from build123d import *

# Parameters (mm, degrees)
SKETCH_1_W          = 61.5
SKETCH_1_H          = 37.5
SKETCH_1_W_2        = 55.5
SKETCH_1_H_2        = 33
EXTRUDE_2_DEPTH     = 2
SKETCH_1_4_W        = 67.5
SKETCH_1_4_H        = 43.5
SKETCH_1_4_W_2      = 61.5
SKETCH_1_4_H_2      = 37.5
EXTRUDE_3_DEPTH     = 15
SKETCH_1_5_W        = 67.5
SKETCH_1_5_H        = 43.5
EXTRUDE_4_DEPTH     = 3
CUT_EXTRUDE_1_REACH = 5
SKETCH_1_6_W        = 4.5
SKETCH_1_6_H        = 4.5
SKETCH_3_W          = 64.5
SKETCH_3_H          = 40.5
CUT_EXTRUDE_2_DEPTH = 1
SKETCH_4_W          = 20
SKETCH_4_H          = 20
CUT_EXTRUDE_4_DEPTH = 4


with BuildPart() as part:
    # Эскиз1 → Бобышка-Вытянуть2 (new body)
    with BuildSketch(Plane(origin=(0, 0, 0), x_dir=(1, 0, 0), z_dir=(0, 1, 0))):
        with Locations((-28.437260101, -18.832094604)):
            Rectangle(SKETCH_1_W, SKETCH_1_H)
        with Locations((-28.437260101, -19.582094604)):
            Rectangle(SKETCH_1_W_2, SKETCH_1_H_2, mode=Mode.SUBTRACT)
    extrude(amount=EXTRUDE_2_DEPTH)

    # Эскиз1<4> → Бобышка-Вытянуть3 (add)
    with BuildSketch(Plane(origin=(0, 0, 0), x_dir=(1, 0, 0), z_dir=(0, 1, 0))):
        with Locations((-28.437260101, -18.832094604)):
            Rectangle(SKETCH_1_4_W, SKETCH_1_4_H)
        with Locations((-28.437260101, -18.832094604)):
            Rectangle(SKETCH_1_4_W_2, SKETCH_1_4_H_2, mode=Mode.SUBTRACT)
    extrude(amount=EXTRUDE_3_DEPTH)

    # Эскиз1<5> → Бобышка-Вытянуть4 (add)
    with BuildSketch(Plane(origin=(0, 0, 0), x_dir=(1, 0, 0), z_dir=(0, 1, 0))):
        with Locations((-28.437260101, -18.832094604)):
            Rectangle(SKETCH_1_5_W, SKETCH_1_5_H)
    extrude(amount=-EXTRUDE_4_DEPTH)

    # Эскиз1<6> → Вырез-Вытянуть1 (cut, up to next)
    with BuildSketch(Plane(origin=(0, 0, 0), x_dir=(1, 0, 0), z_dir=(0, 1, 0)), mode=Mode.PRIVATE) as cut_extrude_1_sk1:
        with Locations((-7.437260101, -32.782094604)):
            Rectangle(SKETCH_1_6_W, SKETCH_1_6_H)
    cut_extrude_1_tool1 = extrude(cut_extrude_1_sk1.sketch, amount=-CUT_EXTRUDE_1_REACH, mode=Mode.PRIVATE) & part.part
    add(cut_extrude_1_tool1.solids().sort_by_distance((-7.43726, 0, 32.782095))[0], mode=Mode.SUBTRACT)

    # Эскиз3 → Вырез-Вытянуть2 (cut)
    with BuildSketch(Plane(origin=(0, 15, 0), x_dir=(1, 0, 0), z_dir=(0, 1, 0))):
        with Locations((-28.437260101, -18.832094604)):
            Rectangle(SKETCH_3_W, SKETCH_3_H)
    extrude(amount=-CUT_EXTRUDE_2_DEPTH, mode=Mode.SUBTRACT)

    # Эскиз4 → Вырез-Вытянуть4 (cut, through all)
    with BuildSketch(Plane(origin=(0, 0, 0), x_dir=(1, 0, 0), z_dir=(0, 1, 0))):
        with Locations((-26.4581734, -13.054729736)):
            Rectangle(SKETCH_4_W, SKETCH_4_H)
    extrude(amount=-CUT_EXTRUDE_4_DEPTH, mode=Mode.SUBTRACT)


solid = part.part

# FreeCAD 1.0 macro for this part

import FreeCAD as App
import Part
import Sketcher

V = App.Vector

doc = App.newDocument("Part")
params = doc.addObject("Spreadsheet::Sheet", "Params")
for row, (alias, value) in enumerate([
    ("sketch1_height", "33 mm"),
    ("sketch1_width", "61.5 mm"),
    ("sketch1_width2", "55.5 mm"),
    ("sketch1_height2", "37.5 mm"),
    ("pad1_length", "2 mm"),
    ("sketch2_width", "67.5 mm"),
    ("sketch2_width2", "61.5 mm"),
    ("sketch2_height", "43.5 mm"),
    ("sketch2_height2", "37.5 mm"),
    ("pad2_length", "15 mm"),
    ("sketch3_width", "67.5 mm"),
    ("sketch3_height", "43.5 mm"),
    ("pad3_length", "3 mm"),
    ("sketch4_width", "4.5 mm"),
    ("sketch5_width", "64.5 mm"),
    ("sketch5_height", "40.5 mm"),
    ("pocket2_length", "1 mm"),
    ("sketch6_width", "20 mm"),
], start=1):
    params.set(f"A{row}", alias)
    params.set(f"B{row}", "=" + value)
    params.setAlias(f"B{row}", alias)

body = doc.addObject("PartDesign::Body", "Body")

# Sketch on XZ plane
sketch1 = body.newObject("Sketcher::SketchObject", "Sketch")
sketch1.AttachmentSupport = (doc.getObject("XZ_Plane"), [""])
sketch1.MapMode = "FlatFace"
sketch1.addGeometry(Part.LineSegment(V(-59.18726, 0.082095, 0), V(-59.18726, 37.582095, 0)), False)
sketch1.addGeometry(Part.LineSegment(V(-59.18726, 37.582095, 0), V(2.31274, 37.582095, 0)), False)
sketch1.addGeometry(Part.LineSegment(V(2.31274, 37.582095, 0), V(2.31274, 0.082095, 0)), False)
sketch1.addGeometry(Part.LineSegment(V(2.31274, 0.082095, 0), V(-59.18726, 0.082095, 0)), False)
sketch1.addGeometry(Part.LineSegment(V(-0.68726, 36.082095, 0), V(-56.18726, 36.082095, 0)), False)
sketch1.addGeometry(Part.LineSegment(V(-56.18726, 36.082095, 0), V(-56.18726, 3.082095, 0)), False)
sketch1.addGeometry(Part.LineSegment(V(-56.18726, 3.082095, 0), V(-0.68726, 3.082095, 0)), False)
sketch1.addGeometry(Part.LineSegment(V(-0.68726, 3.082095, 0), V(-0.68726, 36.082095, 0)), False)
sketch1.addConstraint(Sketcher.Constraint("Coincident", 0, 2, 1, 1))
sketch1.addConstraint(Sketcher.Constraint("Coincident", 1, 2, 2, 1))
sketch1.addConstraint(Sketcher.Constraint("Coincident", 2, 2, 3, 1))
sketch1.addConstraint(Sketcher.Constraint("Coincident", 3, 2, 0, 1))
sketch1.addConstraint(Sketcher.Constraint("Coincident", 4, 2, 5, 1))
sketch1.addConstraint(Sketcher.Constraint("Coincident", 5, 2, 6, 1))
sketch1.addConstraint(Sketcher.Constraint("Coincident", 6, 2, 7, 1))
sketch1.addConstraint(Sketcher.Constraint("Coincident", 7, 2, 4, 1))
sketch1.addConstraint(Sketcher.Constraint("Vertical", 0))
sketch1.addConstraint(Sketcher.Constraint("Horizontal", 1))
sketch1.addConstraint(Sketcher.Constraint("Vertical", 2))
sketch1.addConstraint(Sketcher.Constraint("Horizontal", 3))
sketch1.addConstraint(Sketcher.Constraint("Horizontal", 4))
sketch1.addConstraint(Sketcher.Constraint("Vertical", 5))
sketch1.addConstraint(Sketcher.Constraint("Horizontal", 6))
sketch1.addConstraint(Sketcher.Constraint("Vertical", 7))
sketch1.addConstraint(Sketcher.Constraint("DistanceY", 5, 2, 5, 1, 33.0))
sketch1.addConstraint(Sketcher.Constraint("DistanceX", 1, 1, 1, 2, 61.5))
sketch1.addConstraint(Sketcher.Constraint("DistanceX", 4, 2, 4, 1, 55.5))
sketch1.addConstraint(Sketcher.Constraint("DistanceY", 0, 1, 0, 2, 37.5))
sketch1.addConstraint(Sketcher.Constraint("DistanceX", 0, 2, 4, 2, 3.0))
sketch1.addConstraint(Sketcher.Constraint("DistanceY", 3, 2, 4, 2, 36.0))
sketch1.addConstraint(Sketcher.Constraint("DistanceX", 0, 2, -1, 1, 59.18726))
sketch1.addConstraint(Sketcher.Constraint("DistanceY", -1, 1, 0, 2, 37.582095))
sketch1.setExpression("Constraints[16]", "Params.sketch1_height")
sketch1.setExpression("Constraints[17]", "Params.sketch1_width")
sketch1.setExpression("Constraints[18]", "Params.sketch1_width2")
sketch1.setExpression("Constraints[19]", "Params.sketch1_height2")
pad1 = body.newObject("PartDesign::Pad", "Pad")
pad1.Profile = sketch1
pad1.setExpression("Length", "Params.pad1_length")
pad1.Reversed = True

# Sketch on XZ plane
sketch2 = body.newObject("Sketcher::SketchObject", "Sketch001")
sketch2.AttachmentSupport = (doc.getObject("XZ_Plane"), [""])
sketch2.MapMode = "FlatFace"
sketch2.addGeometry(Part.LineSegment(V(-62.18726, -2.917905, 0), V(-62.18726, 40.582095, 0)), False)
sketch2.addGeometry(Part.LineSegment(V(-62.18726, 40.582095, 0), V(5.31274, 40.582095, 0)), False)
sketch2.addGeometry(Part.LineSegment(V(5.31274, 40.582095, 0), V(5.31274, -2.917905, 0)), False)
sketch2.addGeometry(Part.LineSegment(V(5.31274, -2.917905, 0), V(-62.18726, -2.917905, 0)), False)
sketch2.addGeometry(Part.LineSegment(V(2.31274, 37.582095, 0), V(-59.18726, 37.582095, 0)), False)
sketch2.addGeometry(Part.LineSegment(V(-59.18726, 37.582095, 0), V(-59.18726, 0.082095, 0)), False)
sketch2.addGeometry(Part.LineSegment(V(-59.18726, 0.082095, 0), V(2.31274, 0.082095, 0)), False)
sketch2.addGeometry(Part.LineSegment(V(2.31274, 0.082095, 0), V(2.31274, 37.582095, 0)), False)
sketch2.addConstraint(Sketcher.Constraint("Coincident", 0, 2, 1, 1))
sketch2.addConstraint(Sketcher.Constraint("Coincident", 1, 2, 2, 1))
sketch2.addConstraint(Sketcher.Constraint("Coincident", 2, 2, 3, 1))
sketch2.addConstraint(Sketcher.Constraint("Coincident", 3, 2, 0, 1))
sketch2.addConstraint(Sketcher.Constraint("Coincident", 4, 2, 5, 1))
sketch2.addConstraint(Sketcher.Constraint("Coincident", 5, 2, 6, 1))
sketch2.addConstraint(Sketcher.Constraint("Coincident", 6, 2, 7, 1))
sketch2.addConstraint(Sketcher.Constraint("Coincident", 7, 2, 4, 1))
sketch2.addConstraint(Sketcher.Constraint("Vertical", 0))
sketch2.addConstraint(Sketcher.Constraint("Horizontal", 1))
sketch2.addConstraint(Sketcher.Constraint("Vertical", 2))
sketch2.addConstraint(Sketcher.Constraint("Horizontal", 3))
sketch2.addConstraint(Sketcher.Constraint("Horizontal", 4))
sketch2.addConstraint(Sketcher.Constraint("Vertical", 5))
sketch2.addConstraint(Sketcher.Constraint("Horizontal", 6))
sketch2.addConstraint(Sketcher.Constraint("Vertical", 7))
sketch2.addConstraint(Sketcher.Constraint("DistanceX", 1, 1, 1, 2, 67.5))
sketch2.addConstraint(Sketcher.Constraint("DistanceX", 4, 2, 4, 1, 61.5))
sketch2.addConstraint(Sketcher.Constraint("DistanceY", 0, 1, 0, 2, 43.5))
sketch2.addConstraint(Sketcher.Constraint("DistanceY", 5, 2, 5, 1, 37.5))
sketch2.addConstraint(Sketcher.Constraint("DistanceX", 0, 2, 4, 2, 3.0))
sketch2.addConstraint(Sketcher.Constraint("DistanceY", 4, 2, 0, 2, 3.0))
sketch2.addConstraint(Sketcher.Constraint("DistanceX", 0, 2, -1, 1, 62.18726))
sketch2.addConstraint(Sketcher.Constraint("DistanceY", -1, 1, 0, 2, 40.582095))
sketch2.setExpression("Constraints[16]", "Params.sketch2_width")
sketch2.setExpression("Constraints[17]", "Params.sketch2_width2")
sketch2.setExpression("Constraints[18]", "Params.sketch2_height")
sketch2.setExpression("Constraints[19]", "Params.sketch2_height2")
pad2 = body.newObject("PartDesign::Pad", "Pad001")
pad2.Profile = sketch2
pad2.setExpression("Length", "Params.pad2_length")
pad2.Reversed = True

# Sketch on XZ plane
sketch3 = body.newObject("Sketcher::SketchObject", "Sketch002")
sketch3.AttachmentSupport = (doc.getObject("XZ_Plane"), [""])
sketch3.MapMode = "FlatFace"
sketch3.addGeometry(Part.LineSegment(V(-62.18726, -2.917905, 0), V(-62.18726, 40.582095, 0)), False)
sketch3.addGeometry(Part.LineSegment(V(-62.18726, 40.582095, 0), V(5.31274, 40.582095, 0)), False)
sketch3.addGeometry(Part.LineSegment(V(5.31274, 40.582095, 0), V(5.31274, -2.917905, 0)), False)
sketch3.addGeometry(Part.LineSegment(V(5.31274, -2.917905, 0), V(-62.18726, -2.917905, 0)), False)
sketch3.addConstraint(Sketcher.Constraint("Coincident", 0, 2, 1, 1))
sketch3.addConstraint(Sketcher.Constraint("Coincident", 1, 2, 2, 1))
sketch3.addConstraint(Sketcher.Constraint("Coincident", 2, 2, 3, 1))
sketch3.addConstraint(Sketcher.Constraint("Coincident", 3, 2, 0, 1))
sketch3.addConstraint(Sketcher.Constraint("Vertical", 0))
sketch3.addConstraint(Sketcher.Constraint("Horizontal", 1))
sketch3.addConstraint(Sketcher.Constraint("Vertical", 2))
sketch3.addConstraint(Sketcher.Constraint("Horizontal", 3))
sketch3.addConstraint(Sketcher.Constraint("DistanceX", 1, 1, 1, 2, 67.5))
sketch3.addConstraint(Sketcher.Constraint("DistanceY", 0, 1, 0, 2, 43.5))
sketch3.addConstraint(Sketcher.Constraint("DistanceX", 0, 2, -1, 1, 62.18726))
sketch3.addConstraint(Sketcher.Constraint("DistanceY", -1, 1, 0, 2, 40.582095))
sketch3.setExpression("Constraints[8]", "Params.sketch3_width")
sketch3.setExpression("Constraints[9]", "Params.sketch3_height")
pad3 = body.newObject("PartDesign::Pad", "Pad002")
pad3.Profile = sketch3
pad3.setExpression("Length", "Params.pad3_length")

# Sketch on XZ plane
sketch4 = body.newObject("Sketcher::SketchObject", "Sketch003")
sketch4.AttachmentSupport = (doc.getObject("XZ_Plane"), [""])
sketch4.MapMode = "FlatFace"
sketch4.addGeometry(Part.LineSegment(V(-9.68726, 30.532095, 0), V(-9.68726, 35.032095, 0)), False)
sketch4.addGeometry(Part.LineSegment(V(-9.68726, 35.032095, 0), V(-5.18726, 35.032095, 0)), False)
sketch4.addGeometry(Part.LineSegment(V(-5.18726, 35.032095, 0), V(-5.18726, 30.532095, 0)), False)
sketch4.addGeometry(Part.LineSegment(V(-5.18726, 30.532095, 0), V(-9.68726, 30.532095, 0)), False)
sketch4.addConstraint(Sketcher.Constraint("Coincident", 0, 2, 1, 1))
sketch4.addConstraint(Sketcher.Constraint("Coincident", 1, 2, 2, 1))
sketch4.addConstraint(Sketcher.Constraint("Coincident", 2, 2, 3, 1))
sketch4.addConstraint(Sketcher.Constraint("Coincident", 3, 2, 0, 1))
sketch4.addConstraint(Sketcher.Constraint("Vertical", 0))
sketch4.addConstraint(Sketcher.Constraint("Horizontal", 1))
sketch4.addConstraint(Sketcher.Constraint("Vertical", 2))
sketch4.addConstraint(Sketcher.Constraint("Horizontal", 3))
sketch4.addConstraint(Sketcher.Constraint("Equal", 3, 0))
sketch4.addConstraint(Sketcher.Constraint("DistanceX", 1, 1, 1, 2, 4.5))
sketch4.addConstraint(Sketcher.Constraint("DistanceX", 0, 2, -1, 1, 9.68726))
sketch4.addConstraint(Sketcher.Constraint("DistanceY", -1, 1, 0, 2, 35.032095))
sketch4.setExpression("Constraints[9]", "Params.sketch4_width")
pocket1 = body.newObject("PartDesign::Pocket", "Pocket")
pocket1.Profile = sketch4
pocket1.Type = "UpToFirst"
pocket1.Reversed = True

# Sketch on XZ plane
sketch5 = body.newObject("Sketcher::SketchObject", "Sketch004")
sketch5.AttachmentSupport = (doc.getObject("XZ_Plane"), [""])
sketch5.MapMode = "FlatFace"
sketch5.AttachmentOffset = App.Placement(V(0, 0, -15), App.Rotation())
sketch5.addGeometry(Part.LineSegment(V(-60.68726, -1.417905, 0), V(-60.68726, 39.082095, 0)), False)
sketch5.addGeometry(Part.LineSegment(V(-60.68726, 39.082095, 0), V(3.81274, 39.082095, 0)), False)
sketch5.addGeometry(Part.LineSegment(V(3.81274, 39.082095, 0), V(3.81274, -1.417905, 0)), False)
sketch5.addGeometry(Part.LineSegment(V(3.81274, -1.417905, 0), V(-60.68726, -1.417905, 0)), False)
sketch5.addConstraint(Sketcher.Constraint("Coincident", 0, 2, 1, 1))
sketch5.addConstraint(Sketcher.Constraint("Coincident", 1, 2, 2, 1))
sketch5.addConstraint(Sketcher.Constraint("Coincident", 2, 2, 3, 1))
sketch5.addConstraint(Sketcher.Constraint("Coincident", 3, 2, 0, 1))
sketch5.addConstraint(Sketcher.Constraint("Vertical", 0))
sketch5.addConstraint(Sketcher.Constraint("Horizontal", 1))
sketch5.addConstraint(Sketcher.Constraint("Vertical", 2))
sketch5.addConstraint(Sketcher.Constraint("Horizontal", 3))
sketch5.addConstraint(Sketcher.Constraint("DistanceX", 1, 1, 1, 2, 64.5))
sketch5.addConstraint(Sketcher.Constraint("DistanceY", 0, 1, 0, 2, 40.5))
sketch5.addConstraint(Sketcher.Constraint("DistanceX", 0, 2, -1, 1, 60.68726))
sketch5.addConstraint(Sketcher.Constraint("DistanceY", -1, 1, 0, 2, 39.082095))
sketch5.setExpression("Constraints[8]", "Params.sketch5_width")
sketch5.setExpression("Constraints[9]", "Params.sketch5_height")
pocket2 = body.newObject("PartDesign::Pocket", "Pocket001")
pocket2.Profile = sketch5
pocket2.setExpression("Length", "Params.pocket2_length")
pocket2.Reversed = True

# Sketch on XZ plane
sketch6 = body.newObject("Sketcher::SketchObject", "Sketch005")
sketch6.AttachmentSupport = (doc.getObject("XZ_Plane"), [""])
sketch6.MapMode = "FlatFace"
sketch6.addGeometry(Part.LineSegment(V(-36.458173, 3.05473, 0), V(-36.458173, 23.05473, 0)), False)
sketch6.addGeometry(Part.LineSegment(V(-36.458173, 23.05473, 0), V(-16.458173, 23.05473, 0)), False)
sketch6.addGeometry(Part.LineSegment(V(-16.458173, 23.05473, 0), V(-16.458173, 3.05473, 0)), False)
sketch6.addGeometry(Part.LineSegment(V(-16.458173, 3.05473, 0), V(-36.458173, 3.05473, 0)), False)
sketch6.addConstraint(Sketcher.Constraint("Coincident", 0, 2, 1, 1))
sketch6.addConstraint(Sketcher.Constraint("Coincident", 1, 2, 2, 1))
sketch6.addConstraint(Sketcher.Constraint("Coincident", 2, 2, 3, 1))
sketch6.addConstraint(Sketcher.Constraint("Coincident", 3, 2, 0, 1))
sketch6.addConstraint(Sketcher.Constraint("Vertical", 0))
sketch6.addConstraint(Sketcher.Constraint("Horizontal", 1))
sketch6.addConstraint(Sketcher.Constraint("Vertical", 2))
sketch6.addConstraint(Sketcher.Constraint("Horizontal", 3))
sketch6.addConstraint(Sketcher.Constraint("Equal", 3, 0))
sketch6.addConstraint(Sketcher.Constraint("DistanceX", 1, 1, 1, 2, 20.0))
sketch6.addConstraint(Sketcher.Constraint("DistanceY", -1, 1, 0, 2, 23.05473))
sketch6.addConstraint(Sketcher.Constraint("DistanceX", 0, 2, -1, 1, 36.458173))
sketch6.setExpression("Constraints[9]", "Params.sketch6_width")
pocket3 = body.newObject("PartDesign::Pocket", "Pocket002")
pocket3.Profile = sketch6
pocket3.Type = "ThroughAll"
pocket3.Reversed = True

doc.recompute()
